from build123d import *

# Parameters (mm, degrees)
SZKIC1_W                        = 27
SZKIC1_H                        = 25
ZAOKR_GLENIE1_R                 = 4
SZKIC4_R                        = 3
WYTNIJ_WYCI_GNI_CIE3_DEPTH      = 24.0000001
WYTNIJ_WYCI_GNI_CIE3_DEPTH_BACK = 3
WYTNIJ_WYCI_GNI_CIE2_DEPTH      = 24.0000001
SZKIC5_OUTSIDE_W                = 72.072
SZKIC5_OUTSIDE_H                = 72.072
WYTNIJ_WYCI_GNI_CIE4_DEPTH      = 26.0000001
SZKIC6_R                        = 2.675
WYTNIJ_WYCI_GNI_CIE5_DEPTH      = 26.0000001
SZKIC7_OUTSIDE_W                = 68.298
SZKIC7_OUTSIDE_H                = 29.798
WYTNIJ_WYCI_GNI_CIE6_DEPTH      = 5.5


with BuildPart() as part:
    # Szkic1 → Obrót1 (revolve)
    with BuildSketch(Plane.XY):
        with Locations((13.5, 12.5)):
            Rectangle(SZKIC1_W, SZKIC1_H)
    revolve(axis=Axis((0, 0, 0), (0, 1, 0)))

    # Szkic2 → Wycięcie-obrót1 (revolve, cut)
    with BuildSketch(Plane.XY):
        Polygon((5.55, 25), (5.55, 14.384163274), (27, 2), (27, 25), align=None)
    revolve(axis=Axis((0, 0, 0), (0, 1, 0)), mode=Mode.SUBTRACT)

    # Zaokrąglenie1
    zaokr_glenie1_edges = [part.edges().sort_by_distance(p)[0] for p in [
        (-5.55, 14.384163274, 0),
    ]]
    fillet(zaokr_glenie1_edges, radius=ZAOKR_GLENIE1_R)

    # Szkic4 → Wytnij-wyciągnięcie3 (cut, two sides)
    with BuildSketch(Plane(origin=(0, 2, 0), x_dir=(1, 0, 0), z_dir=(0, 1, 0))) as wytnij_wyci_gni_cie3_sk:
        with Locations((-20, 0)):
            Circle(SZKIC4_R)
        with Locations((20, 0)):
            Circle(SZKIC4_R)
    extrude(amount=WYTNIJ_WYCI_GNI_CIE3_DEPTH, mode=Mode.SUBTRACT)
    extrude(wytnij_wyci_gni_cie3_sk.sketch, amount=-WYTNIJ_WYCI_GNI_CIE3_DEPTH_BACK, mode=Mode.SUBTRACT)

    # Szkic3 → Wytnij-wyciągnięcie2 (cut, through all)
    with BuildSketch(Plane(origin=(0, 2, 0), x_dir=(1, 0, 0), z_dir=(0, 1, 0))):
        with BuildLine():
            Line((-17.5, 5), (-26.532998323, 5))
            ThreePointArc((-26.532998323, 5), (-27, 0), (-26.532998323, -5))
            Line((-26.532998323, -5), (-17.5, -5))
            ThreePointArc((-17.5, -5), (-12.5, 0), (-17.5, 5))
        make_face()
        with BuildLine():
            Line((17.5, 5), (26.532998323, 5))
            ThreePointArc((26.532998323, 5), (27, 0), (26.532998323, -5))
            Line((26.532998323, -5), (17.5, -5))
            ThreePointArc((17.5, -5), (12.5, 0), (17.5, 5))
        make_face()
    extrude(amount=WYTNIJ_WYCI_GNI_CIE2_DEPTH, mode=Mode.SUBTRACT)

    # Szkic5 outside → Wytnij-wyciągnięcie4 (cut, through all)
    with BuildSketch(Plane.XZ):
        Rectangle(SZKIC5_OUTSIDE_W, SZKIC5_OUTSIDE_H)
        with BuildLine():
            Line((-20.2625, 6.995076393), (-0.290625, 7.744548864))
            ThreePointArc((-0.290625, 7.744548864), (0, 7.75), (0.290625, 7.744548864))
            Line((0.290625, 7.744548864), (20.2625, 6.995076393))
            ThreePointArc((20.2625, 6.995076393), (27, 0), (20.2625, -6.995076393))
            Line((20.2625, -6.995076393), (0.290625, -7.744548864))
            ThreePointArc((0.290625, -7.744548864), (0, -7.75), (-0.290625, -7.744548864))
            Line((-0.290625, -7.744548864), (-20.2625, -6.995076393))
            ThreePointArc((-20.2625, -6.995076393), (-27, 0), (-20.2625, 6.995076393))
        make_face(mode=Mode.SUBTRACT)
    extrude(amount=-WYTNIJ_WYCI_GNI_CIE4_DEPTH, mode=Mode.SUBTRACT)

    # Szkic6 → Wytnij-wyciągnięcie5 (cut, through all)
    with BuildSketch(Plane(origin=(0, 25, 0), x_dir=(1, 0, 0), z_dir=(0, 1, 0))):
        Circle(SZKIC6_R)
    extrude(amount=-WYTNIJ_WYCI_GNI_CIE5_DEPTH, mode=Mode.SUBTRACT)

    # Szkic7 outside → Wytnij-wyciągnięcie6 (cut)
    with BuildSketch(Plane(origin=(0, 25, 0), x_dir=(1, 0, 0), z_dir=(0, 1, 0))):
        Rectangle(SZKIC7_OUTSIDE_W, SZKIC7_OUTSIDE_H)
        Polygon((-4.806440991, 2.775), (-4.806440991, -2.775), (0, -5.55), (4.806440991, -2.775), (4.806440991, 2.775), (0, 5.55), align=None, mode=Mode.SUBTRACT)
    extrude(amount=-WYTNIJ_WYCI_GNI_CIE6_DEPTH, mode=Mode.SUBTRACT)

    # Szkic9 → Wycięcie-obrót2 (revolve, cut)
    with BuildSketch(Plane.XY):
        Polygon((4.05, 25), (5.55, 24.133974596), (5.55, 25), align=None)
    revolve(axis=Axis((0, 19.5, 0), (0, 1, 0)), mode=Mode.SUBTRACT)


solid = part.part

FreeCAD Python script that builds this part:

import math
import FreeCAD as App
import Part
import Sketcher

V = App.Vector
Q = App.Units.Quantity


def edges_at(feature, points):
    """Names of the edges that pass closest to the given points."""
    edges = feature.Shape.Edges
    near = lambda p: min(range(len(edges)), key=lambda i: edges[i].distToShape(Part.Vertex(*p))[0])
    return sorted({f"Edge{near(p) + 1}" for p in points})


def add_polygon(sketch, points):
    """Adds a closed chain of lines whose ends are joined by coincident constraints."""
    first, n = sketch.GeometryCount, len(points)
    for a, b in zip(points, points[1:] + points[:1]):
        sketch.addGeometry(Part.LineSegment(App.Vector(*a, 0), App.Vector(*b, 0)), False)
    for i in range(n):
        sketch.addConstraint(Sketcher.Constraint("Coincident", first + i, 2, first + (i + 1) % n, 1))

doc = App.newDocument("Part")
body = doc.addObject("PartDesign::Body", "Body")

# Sketch on XY plane
sketch1 = doc.addObject("Sketcher::SketchObject", "Sketch")
body.addObject(sketch1)
sketch1.AttachmentSupport = (doc.XY_Plane, [""])
sketch1.MapMode = "FlatFace"
add_polygon(sketch1, [(0, 25), (0, 0), (27, 0), (27, 25)])  # lines 0-3
sketch1.addConstraint(Sketcher.Constraint("Vertical", 0))
sketch1.addConstraint(Sketcher.Constraint("Horizontal", 1))
sketch1.addConstraint(Sketcher.Constraint("Vertical", 2))
sketch1.addConstraint(Sketcher.Constraint("Horizontal", 3))
sketch1.addConstraint(Sketcher.Constraint("Coincident", 0, 2, -1, 1))
sketch1.addConstraint(Sketcher.Constraint("DistanceX", 1, 1, 1, 2, Q("27 mm")))
sketch1.addConstraint(Sketcher.Constraint("DistanceY", 0, 2, 0, 1, Q("25 mm")))
revolution = doc.addObject("PartDesign::Revolution", "Revolution")
body.addObject(revolution)
revolution.Profile = sketch1
revolution.ReferenceAxis = (sketch1, ["V_Axis"])
revolution.Angle = 360

# Sketch on XY plane
sketch2 = doc.addObject("Sketcher::SketchObject", "Sketch001")
body.addObject(sketch2)
sketch2.AttachmentSupport = (doc.XY_Plane, [""])
sketch2.MapMode = "FlatFace"
add_polygon(sketch2, [(6, 25), (6, 14), (27, 2), (27, 25)])  # lines 0-3
sketch2.addConstraint(Sketcher.Constraint("Vertical", 0))
sketch2.addConstraint(Sketcher.Constraint("Vertical", 2))
sketch2.addConstraint(Sketcher.Constraint("Horizontal", 3))
sketch2.addConstraint(Sketcher.Constraint("DistanceY", 2, 1, 2, 2, Q("23 mm")))
sketch2.addConstraint(Sketcher.Constraint("Angle", 1, Q("-30 deg")))
sketch2.addConstraint(Sketcher.Constraint("DistanceX", -1, 1, 1, 2, Q("27 mm")))
sketch2.addConstraint(Sketcher.Constraint("DistanceY", -1, 1, 1, 2, Q("2 mm")))
sketch2.addConstraint(Sketcher.Constraint("DistanceX", 3, 2, 3, 1, Q("21.45 mm")))
groove = doc.addObject("PartDesign::Groove", "Groove")
body.addObject(groove)
groove.Profile = sketch2
groove.ReferenceAxis = (sketch2, ["V_Axis"])
groove.Angle = 360
doc.recompute()

fillet = doc.addObject("PartDesign::Fillet", "Fillet")
body.addObject(fillet)
fillet.Base = (groove, edges_at(groove, [(-5.55, 14.384, 0)]))
fillet.Radius = 4

# Sketch on XZ plane
sketch3 = doc.addObject("Sketcher::SketchObject", "Sketch002")
body.addObject(sketch3)
sketch3.AttachmentSupport = (doc.XZ_Plane, [""])
sketch3.MapMode = "FlatFace"
sketch3.AttachmentOffset = App.Placement(V(0, 0, -2), App.Rotation())
sketch3.addGeometry(Part.Circle(V(-20, 0, 0), V(0, 0, 1), 3), False)
sketch3.addGeometry(Part.Circle(V(20, 0, 0), V(0, 0, 1), 3), False)
sketch3.addConstraint(Sketcher.Constraint("Equal", 0, 1))
sketch3.addConstraint(Sketcher.Constraint("Symmetric", 0, 3, 1, 3, -1, 1))
sketch3.addConstraint(Sketcher.Constraint("PointOnObject", 0, 3, -1))
sketch3.addConstraint(Sketcher.Constraint("Diameter", 0, Q("6 mm")))
sketch3.addConstraint(Sketcher.Constraint("DistanceX", 0, 3, -1, 1, Q("20 mm")))
pocket1 = doc.addObject("PartDesign::Pocket", "Pocket")
body.addObject(pocket1)
pocket1.Profile = sketch3
pocket1.Type = "ThroughAll"
pocket1.Midplane = True

# Sketch on XZ plane
sketch4 = doc.addObject("Sketcher::SketchObject", "Sketch003")
body.addObject(sketch4)
sketch4.AttachmentSupport = (doc.XZ_Plane, [""])
sketch4.MapMode = "FlatFace"
sketch4.AttachmentOffset = App.Placement(V(0, 0, -2), App.Rotation())
sketch4.addGeometry(Part.LineSegment(V(-18, -5, 0), V(-27, -5, 0)), False)
sketch4.addGeometry(Part.ArcOfCircle(Part.Circle(V(0, 0, 0), V(0, 0, 1), 27), math.radians(169), math.radians(191)), False)
sketch4.addGeometry(Part.LineSegment(V(-27, 5, 0), V(-18, 5, 0)), False)
sketch4.addGeometry(Part.ArcOfCircle(Part.Circle(V(-18, 0, 0), V(0, 0, 1), 5), math.radians(-90), math.radians(90)), False)
sketch4.addGeometry(Part.LineSegment(V(27, -5, 0), V(18, -5, 0)), False)
sketch4.addGeometry(Part.ArcOfCircle(Part.Circle(V(18, 0, 0), V(0, 0, 1), 5), math.radians(90), math.radians(270)), False)
sketch4.addGeometry(Part.LineSegment(V(18, 5, 0), V(27, 5, 0)), False)
sketch4.addGeometry(Part.ArcOfCircle(Part.Circle(V(0, 0, 0), V(0, 0, 1), 27), math.radians(-11), math.radians(11)), False)
sketch4.addConstraint(Sketcher.Constraint("Coincident", 0, 2, 1, 2))
sketch4.addConstraint(Sketcher.Constraint("Coincident", 1, 1, 2, 1))
sketch4.addConstraint(Sketcher.Constraint("Tangent", 2, 2, 3, 2))
sketch4.addConstraint(Sketcher.Constraint("Tangent", 3, 1, 0, 1))
sketch4.addConstraint(Sketcher.Constraint("Tangent", 4, 2, 5, 2))
sketch4.addConstraint(Sketcher.Constraint("Tangent", 5, 1, 6, 1))
sketch4.addConstraint(Sketcher.Constraint("Coincident", 6, 2, 7, 2))
sketch4.addConstraint(Sketcher.Constraint("Coincident", 7, 1, 4, 1))
sketch4.addConstraint(Sketcher.Constraint("Horizontal", 0))
sketch4.addConstraint(Sketcher.Constraint("Horizontal", 2))
sketch4.addConstraint(Sketcher.Constraint("Horizontal", 4))
sketch4.addConstraint(Sketcher.Constraint("Horizontal", 6))
sketch4.addConstraint(Sketcher.Constraint("Coincident", 1, 3, -1, 1))
sketch4.addConstraint(Sketcher.Constraint("Coincident", 7, 3, -1, 1))
sketch4.addConstraint(Sketcher.Constraint("Equal", 3, 5))
sketch4.addConstraint(Sketcher.Constraint("Equal", 1, 7))
sketch4.addConstraint(Sketcher.Constraint("Symmetric", 3, 3, 5, 3, -1, 1))
sketch4.addConstraint(Sketcher.Constraint("PointOnObject", 3, 3, -1))
sketch4.addConstraint(Sketcher.Constraint("Radius", 1, Q("27 mm")))
sketch4.addConstraint(Sketcher.Constraint("Radius", 3, Q("5 mm")))
sketch4.addConstraint(Sketcher.Constraint("DistanceX", 3, 3, 5, 3, Q("35 mm")))
pocket2 = doc.addObject("PartDesign::Pocket", "Pocket001")
body.addObject(pocket2)
pocket2.Profile = sketch4
pocket2.Type = "ThroughAll"

# Sketch on XZ plane
sketch5 = doc.addObject("Sketcher::SketchObject", "Sketch004")
body.addObject(sketch5)
sketch5.AttachmentSupport = (doc.XZ_Plane, [""])
sketch5.MapMode = "FlatFace"
add_polygon(sketch5, [(-36, 36), (-36, -36), (36, -36), (36, 36)])  # lines 0-3
sketch5.addGeometry(Part.ArcOfCircle(Part.Circle(V(-20, 0, 0), V(0, 0, 1), 7), math.radians(92), math.radians(268)), False)  # 4
sketch5.addGeometry(Part.LineSegment(V(-20.3, 7, 0), V(-0.3, 7.7, 0)), False)  # 5
sketch5.addGeometry(Part.ArcOfCircle(Part.Circle(V(0, 0, 0), V(0, 0, 1), 7.7), math.radians(87.85), math.radians(92.15)), False)  # 6
sketch5.addGeometry(Part.LineSegment(V(0.3, 7.7, 0), V(20.3, 7, 0)), False)  # 7
sketch5.addGeometry(Part.ArcOfCircle(Part.Circle(V(20, 0, 0), V(0, 0, 1), 7), math.radians(-88), math.radians(88)), False)  # 8
sketch5.addGeometry(Part.LineSegment(V(20.3, -7, 0), V(0.3, -7.7, 0)), False)  # 9
sketch5.addGeometry(Part.ArcOfCircle(Part.Circle(V(0, 0, 0), V(0, 0, 1), 7.7), math.radians(-92.15), math.radians(-87.85)), False)  # 10
sketch5.addGeometry(Part.LineSegment(V(-0.3, -7.7, 0), V(-20.3, -7, 0)), False)  # 11
sketch5.addConstraint(Sketcher.Constraint("Tangent", 4, 1, 5, 1))
sketch5.addConstraint(Sketcher.Constraint("Tangent", 5, 2, 6, 2))
sketch5.addConstraint(Sketcher.Constraint("Tangent", 6, 1, 7, 1))
sketch5.addConstraint(Sketcher.Constraint("Tangent", 7, 2, 8, 2))
sketch5.addConstraint(Sketcher.Constraint("Tangent", 8, 1, 9, 1))
sketch5.addConstraint(Sketcher.Constraint("Tangent", 9, 2, 10, 2))
sketch5.addConstraint(Sketcher.Constraint("Tangent", 10, 1, 11, 1))
sketch5.addConstraint(Sketcher.Constraint("Tangent", 11, 2, 4, 2))
sketch5.addConstraint(Sketcher.Constraint("Vertical", 0))
sketch5.addConstraint(Sketcher.Constraint("Horizontal", 1))
sketch5.addConstraint(Sketcher.Constraint("Vertical", 2))
sketch5.addConstraint(Sketcher.Constraint("Horizontal", 3))
sketch5.addConstraint(Sketcher.Constraint("Coincident", 6, 3, -1, 1))
sketch5.addConstraint(Sketcher.Constraint("Coincident", 10, 3, -1, 1))
sketch5.addConstraint(Sketcher.Constraint("Equal", 4, 8))
sketch5.addConstraint(Sketcher.Constraint("Equal", 6, 10))
sketch5.addConstraint(Sketcher.Constraint("Symmetric", 4, 3, 8, 3, -1, 1))
sketch5.addConstraint(Sketcher.Constraint("Symmetric", 0, 2, 2, 2, -1, 1))
sketch5.addConstraint(Sketcher.Constraint("PointOnObject", 4, 3, -1))
sketch5.addConstraint(Sketcher.Constraint("Equal", 3, 0))
sketch5.addConstraint(Sketcher.Constraint("Radius", 4, Q("7 mm")))
sketch5.addConstraint(Sketcher.Constraint("Radius", 6, Q("7.75 mm")))
sketch5.addConstraint(Sketcher.Constraint("DistanceX", 4, 3, -1, 1, Q("20 mm")))
sketch5.addConstraint(Sketcher.Constraint("DistanceX", 1, 1, 1, 2, Q("72.072 mm")))
pocket3 = doc.addObject("PartDesign::Pocket", "Pocket002")
body.addObject(pocket3)
pocket3.Profile = sketch5
pocket3.Type = "ThroughAll"

# Sketch on XZ plane
sketch6 = doc.addObject("Sketcher::SketchObject", "Sketch005")
body.addObject(sketch6)
sketch6.AttachmentSupport = (doc.XZ_Plane, [""])
sketch6.MapMode = "FlatFace"
sketch6.AttachmentOffset = App.Placement(V(0, 0, -25), App.Rotation())
sketch6.addGeometry(Part.Circle(V(0, 0, 0), V(0, 0, 1), 2.7), False)
sketch6.addConstraint(Sketcher.Constraint("Coincident", 0, 3, -1, 1))
sketch6.addConstraint(Sketcher.Constraint("Diameter", 0, Q("5.35 mm")))
pocket4 = doc.addObject("PartDesign::Pocket", "Pocket003")
body.addObject(pocket4)
pocket4.Profile = sketch6
pocket4.Type = "ThroughAll"
pocket4.Reversed = True

# Sketch on XZ plane
sketch7 = doc.addObject("Sketcher::SketchObject", "Sketch006")
body.addObject(sketch7)
sketch7.AttachmentSupport = (doc.XZ_Plane, [""])
sketch7.MapMode = "FlatFace"
sketch7.AttachmentOffset = App.Placement(V(0, 0, -25), App.Rotation())
add_polygon(sketch7, [(-34, -15), (-34, 15), (34, 15), (34, -15)])  # lines 0-3
add_polygon(sketch7, [(-5, 3), (-5, -3), (0, -6), (5, -3), (5, 3), (0, 6)])  # lines 4-9
sketch7.addConstraint(Sketcher.Constraint("Vertical", 0))
sketch7.addConstraint(Sketcher.Constraint("Horizontal", 1))
sketch7.addConstraint(Sketcher.Constraint("Vertical", 2))
sketch7.addConstraint(Sketcher.Constraint("Horizontal", 3))
sketch7.addConstraint(Sketcher.Constraint("Vertical", 4))
sketch7.addConstraint(Sketcher.Constraint("Vertical", 7))
sketch7.addConstraint(Sketcher.Constraint("Symmetric", 0, 2, 2, 2, -1, 1))
sketch7.addConstraint(Sketcher.Constraint("Symmetric", 4, 2, 7, 2, -1, 1))
sketch7.addConstraint(Sketcher.Constraint("Symmetric", 5, 2, 8, 2, -1, 1))
sketch7.addConstraint(Sketcher.Constraint("PointOnObject", 5, 2, -2))
sketch7.addConstraint(Sketcher.Constraint("Parallel", 6, 9))
sketch7.addConstraint(Sketcher.Constraint("Horizontal", 4, 2, 6, 2))
sketch7.addConstraint(Sketcher.Constraint("Angle", 5, Q("-30 deg")))
sketch7.addConstraint(Sketcher.Constraint("DistanceY", 4, 2, 4, 1, Q("5.55 mm")))
sketch7.addConstraint(Sketcher.Constraint("DistanceY", 5, 2, 8, 2, Q("11.1 mm")))
sketch7.addConstraint(Sketcher.Constraint("DistanceX", 1, 1, 1, 2, Q("68.298 mm")))
sketch7.addConstraint(Sketcher.Constraint("DistanceY", 0, 1, 0, 2, Q("29.798 mm")))
pocket5 = doc.addObject("PartDesign::Pocket", "Pocket004")
body.addObject(pocket5)
pocket5.Profile = sketch7
pocket5.Length = 5.5
pocket5.Reversed = True

# Sketch on XY plane
sketch8 = doc.addObject("Sketcher::SketchObject", "Sketch007")
body.addObject(sketch8)
sketch8.AttachmentSupport = (doc.XY_Plane, [""])
sketch8.MapMode = "FlatFace"
add_polygon(sketch8, [(4, 25), (5.5, 24.1), (5.5, 25)])  # lines 0-2
sketch8.addConstraint(Sketcher.Constraint("Vertical", 1))
sketch8.addConstraint(Sketcher.Constraint("Horizontal", 2))
sketch8.addConstraint(Sketcher.Constraint("Angle", 0, Q("-30 deg")))
sketch8.addConstraint(Sketcher.Constraint("DistanceX", 2, 2, 2, 1, Q("1.5 mm")))
sketch8.addConstraint(Sketcher.Constraint("DistanceY", -1, 1, 1, 2, Q("25 mm")))
sketch8.addConstraint(Sketcher.Constraint("DistanceX", -1, 1, 0, 2, Q("5.55 mm")))
groove2 = doc.addObject("PartDesign::Groove", "Groove001")
body.addObject(groove2)
groove2.Profile = sketch8
groove2.ReferenceAxis = (sketch8, ["V_Axis"])
groove2.Angle = 360

doc.recompute()
